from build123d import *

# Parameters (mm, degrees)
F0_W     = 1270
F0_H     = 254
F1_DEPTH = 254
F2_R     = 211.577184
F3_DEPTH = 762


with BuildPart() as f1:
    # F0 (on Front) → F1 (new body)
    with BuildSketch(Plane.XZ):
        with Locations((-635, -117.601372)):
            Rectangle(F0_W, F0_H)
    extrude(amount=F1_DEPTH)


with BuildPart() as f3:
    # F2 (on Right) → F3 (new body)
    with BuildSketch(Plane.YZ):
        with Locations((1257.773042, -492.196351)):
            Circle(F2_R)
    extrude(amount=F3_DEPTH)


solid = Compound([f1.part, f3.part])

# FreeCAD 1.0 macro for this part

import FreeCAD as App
import Part
import Sketcher
from FreeCAD import Vector
Q = App.Units.Quantity

doc = App.newDocument("Part")
body = doc.addObject("PartDesign::Body", "Body")

# Sketch on XZ plane
sketch1 = body.newObject("Sketcher::SketchObject", "Sketch")
sketch1.AttachmentSupport = (doc.getObject("XZ_Plane"), [""])
sketch1.MapMode = "FlatFace"
sketch1.addGeometry(Part.LineSegment(Vector(-1270, 9.398628, 0), Vector(-1270, -244.601372, 0)), False)
sketch1.addGeometry(Part.LineSegment(Vector(-1270, -244.601372, 0), Vector(0, -244.601372, 0)), False)
sketch1.addGeometry(Part.LineSegment(Vector(0, -244.601372, 0), Vector(0, 9.398628, 0)), False)
sketch1.addGeometry(Part.LineSegment(Vector(0, 9.398628, 0), Vector(-1270, 9.398628, 0)), False)
sketch1.addConstraint(Sketcher.Constraint("Coincident", 0, 2, 1, 1))
sketch1.addConstraint(Sketcher.Constraint("Coincident", 1, 2, 2, 1))
sketch1.addConstraint(Sketcher.Constraint("Coincident", 2, 2, 3, 1))
sketch1.addConstraint(Sketcher.Constraint("Coincident", 3, 2, 0, 1))
sketch1.addConstraint(Sketcher.Constraint("Vertical", 0))
sketch1.addConstraint(Sketcher.Constraint("Horizontal", 1))
sketch1.addConstraint(Sketcher.Constraint("Vertical", 2))
sketch1.addConstraint(Sketcher.Constraint("Horizontal", 3))
sketch1.addConstraint(Sketcher.Constraint("PointOnObject", 1, 2, -2))
sketch1.addConstraint(Sketcher.Constraint("DistanceX", 1, 1, 1, 2, Q("50 in")))
sketch1.addConstraint(Sketcher.Constraint("DistanceY", 0, 2, 0, 1, Q("10 in")))
sketch1.addConstraint(Sketcher.Constraint("DistanceY", 0, 2, -1, 1, Q("244.601372 mm")))
pad1 = body.newObject("PartDesign::Pad", "Pad")
pad1.Profile = sketch1
pad1.Length = Q("10 in")
body2 = doc.addObject("PartDesign::Body", "Body001")

# Sketch on YZ plane
sketch2 = body2.newObject("Sketcher::SketchObject", "Sketch001")
sketch2.AttachmentSupport = (doc.getObject("YZ_Plane001"), [""])
sketch2.MapMode = "FlatFace"
sketch2.addGeometry(Part.Circle(Vector(1257.773042, -492.196351, 0), Vector(0, 0, 1), 211.577184), False)
sketch2.addConstraint(Sketcher.Constraint("Diameter", 0, Q("423.154368 mm")))
sketch2.addConstraint(Sketcher.Constraint("DistanceX", -1, 1, 0, 3, Q("1257.773042 mm")))
sketch2.addConstraint(Sketcher.Constraint("DistanceY", 0, 3, -1, 1, Q("492.196351 mm")))
pad2 = body2.newObject("PartDesign::Pad", "Pad001")
pad2.Profile = sketch2
pad2.Length = Q("30 in")

doc.recompute()
